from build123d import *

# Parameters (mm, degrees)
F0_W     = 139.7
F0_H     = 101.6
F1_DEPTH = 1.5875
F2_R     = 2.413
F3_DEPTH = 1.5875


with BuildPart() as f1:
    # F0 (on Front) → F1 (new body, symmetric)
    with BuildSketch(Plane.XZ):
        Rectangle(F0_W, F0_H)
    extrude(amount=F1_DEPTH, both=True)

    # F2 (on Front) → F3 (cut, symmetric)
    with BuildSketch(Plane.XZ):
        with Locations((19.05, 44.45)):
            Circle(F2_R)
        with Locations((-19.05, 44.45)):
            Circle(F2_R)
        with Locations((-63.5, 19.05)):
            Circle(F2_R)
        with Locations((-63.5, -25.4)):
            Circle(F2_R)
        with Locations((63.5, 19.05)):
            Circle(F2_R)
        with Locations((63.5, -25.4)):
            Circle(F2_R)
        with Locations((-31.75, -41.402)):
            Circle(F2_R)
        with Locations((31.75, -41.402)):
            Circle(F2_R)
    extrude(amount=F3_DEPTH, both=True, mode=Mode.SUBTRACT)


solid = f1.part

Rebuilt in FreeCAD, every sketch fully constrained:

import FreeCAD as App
import Part
import Sketcher
from FreeCAD import Vector
Q = App.Units.Quantity


def add_polygon(sketch, points):
    """Adds a closed chain of lines whose ends are joined by coincident constraints."""
    first, n = sketch.GeometryCount, len(points)
    for a, b in zip(points, points[1:] + points[:1]):
        sketch.addGeometry(Part.LineSegment(App.Vector(*a, 0), App.Vector(*b, 0)), False)
    for i in range(n):
        sketch.addConstraint(Sketcher.Constraint("Coincident", first + i, 2, first + (i + 1) % n, 1))

doc = App.newDocument("Part")
params = doc.addObject("Spreadsheet::Sheet", "Params")
for row, (alias, value) in enumerate([
    ("sketch1_height", "4 in"),
    ("sketch1_width", "5.5 in"),
    ("pad1_length", "0.125 in"),
    ("sketch2_diameter", "0.19 in"),
    ("pocket1_length", "0.125 in"),
], start=1):
    params.set(f"A{row}", alias)
    params.set(f"B{row}", "=" + value)
    params.setAlias(f"B{row}", alias)

body = doc.addObject("PartDesign::Body", "Body")

sketch1 = doc.addObject("Sketcher::SketchObject", "Sketch")
body.addObject(sketch1)
sketch1.AttachmentSupport = (doc.XZ_Plane, [""])
sketch1.MapMode = "FlatFace"
add_polygon(sketch1, [(-70, 51), (-70, -51), (70, -51), (70, 51)])
sketch1.addConstraint([
    Sketcher.Constraint("Vertical", 0),
    Sketcher.Constraint("Horizontal", 1),
    Sketcher.Constraint("Vertical", 2),
    Sketcher.Constraint("Horizontal", 3),
    Sketcher.Constraint("Symmetric", 0, 2, 2, 2, -1, 1),
    Sketcher.Constraint("DistanceY", 0, 2, 0, 1, Q("4 in")),
    Sketcher.Constraint("DistanceX", 1, 1, 1, 2, Q("5.5 in")),
])
sketch1.setExpression("Constraints[9]", "Params.sketch1_height")
sketch1.setExpression("Constraints[10]", "Params.sketch1_width")
pad1 = doc.addObject("PartDesign::Pad", "Pad")
body.addObject(pad1)
pad1.Profile = sketch1
pad1.setExpression("Length", "Params.pad1_length")
pad1.Midplane = True

sketch2 = doc.addObject("Sketcher::SketchObject", "Sketch001")
body.addObject(sketch2)
sketch2.AttachmentSupport = (doc.XZ_Plane, [""])
sketch2.MapMode = "FlatFace"
sketch2.addGeometry([
    Part.Circle(Vector(19.1, 44.5, 0), Vector(0, 0, 1), 2.4),
    Part.Circle(Vector(-19.1, 44.5, 0), Vector(0, 0, 1), 2.4),
    Part.Circle(Vector(-63.5, 19.1, 0), Vector(0, 0, 1), 2.4),
    Part.Circle(Vector(-63.5, -25.4, 0), Vector(0, 0, 1), 2.4),
    Part.Circle(Vector(63.5, 19.1, 0), Vector(0, 0, 1), 2.4),
    Part.Circle(Vector(63.5, -25.4, 0), Vector(0, 0, 1), 2.4),
    Part.Circle(Vector(-31.8, -41.4, 0), Vector(0, 0, 1), 2.4),
    Part.Circle(Vector(31.8, -41.4, 0), Vector(0, 0, 1), 2.4),
], False)
sketch2.addConstraint([
    Sketcher.Constraint("Equal", 0, 1),
    Sketcher.Constraint("Equal", 1, 2),
    Sketcher.Constraint("Equal", 2, 3),
    Sketcher.Constraint("Equal", 3, 4),
    Sketcher.Constraint("Equal", 4, 5),
    Sketcher.Constraint("Equal", 5, 6),
    Sketcher.Constraint("Equal", 6, 7),
    Sketcher.Constraint("Symmetric", 0, 3, 1, 3, -2),
    Sketcher.Constraint("Symmetric", 2, 3, 4, 3, -2),
    Sketcher.Constraint("Symmetric", 3, 3, 5, 3, -2),
    Sketcher.Constraint("Symmetric", 6, 3, 7, 3, -2),
    Sketcher.Constraint("Vertical", 2, 3, 3, 3),
    Sketcher.Constraint("Diameter", 0, Q("0.19 in")),
    Sketcher.Constraint("DistanceY", 3, 3, -1, 1, Q("1 in")),
    Sketcher.Constraint("DistanceY", 2, 3, 1, 3, Q("1 in")),
    Sketcher.Constraint("DistanceX", 2, 3, 4, 3, Q("5 in")),
    Sketcher.Constraint("DistanceX", 6, 3, 0, 3, Q("2 in")),
    Sketcher.Constraint("DistanceX", 1, 3, 0, 3, Q("1.5 in")),
    Sketcher.Constraint("DistanceY", -1, 1, 0, 3, Q("1.75 in")),
    Sketcher.Constraint("DistanceY", 6, 3, -1, 1, Q("1.63 in")),
])
sketch2.setExpression("Constraints[12]", "Params.sketch2_diameter")
pocket1 = doc.addObject("PartDesign::Pocket", "Pocket")
body.addObject(pocket1)
pocket1.Profile = sketch2
pocket1.setExpression("Length", "Params.pocket1_length")
pocket1.Midplane = True

doc.recompute()
